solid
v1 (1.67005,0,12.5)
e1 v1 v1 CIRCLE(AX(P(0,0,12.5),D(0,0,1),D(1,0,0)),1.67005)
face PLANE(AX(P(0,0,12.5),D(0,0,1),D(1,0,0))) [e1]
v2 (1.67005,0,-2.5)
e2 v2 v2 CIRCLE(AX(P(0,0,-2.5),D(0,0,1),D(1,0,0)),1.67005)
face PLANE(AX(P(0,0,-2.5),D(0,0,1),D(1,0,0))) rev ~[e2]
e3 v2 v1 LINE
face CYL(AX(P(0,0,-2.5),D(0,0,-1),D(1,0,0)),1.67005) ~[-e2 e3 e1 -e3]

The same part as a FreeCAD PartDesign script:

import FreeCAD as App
import Part
import Sketcher
Q = App.Units.Quantity

doc = App.newDocument("Part")
params = doc.addObject("Spreadsheet::Sheet", "Params")
for row, (alias, value) in enumerate([
    ("pad1_length", "15 mm"),
], start=1):
    params.set(f"A{row}", alias)
    params.set(f"B{row}", "=" + value)
    params.setAlias(f"B{row}", alias)

body = doc.addObject("PartDesign::Body", "Body")

# Sketch on XY plane
sketch1 = doc.addObject("Sketcher::SketchObject", "Sketch")
body.addObject(sketch1)
sketch1.AttachmentSupport = (doc.XY_Plane, [""])
sketch1.MapMode = "FlatFace"
sketch1.AttachmentOffset = App.Placement(App.Vector(0, 0, -2.5), App.Rotation())
sketch1.addGeometry(Part.Circle(App.Vector(0, 0, 0), App.Vector(0, 0, 1), 1.7), False)
sketch1.addConstraint([
    Sketcher.Constraint("Coincident", 0, 3, -1, 1),
    Sketcher.Constraint("Diameter", 0, Q("3.3401 mm")),
])
pad1 = doc.addObject("PartDesign::Pad", "Pad")
body.addObject(pad1)
pad1.Profile = sketch1
pad1.setExpression("Length", "Params.pad1_length")

doc.recompute()
